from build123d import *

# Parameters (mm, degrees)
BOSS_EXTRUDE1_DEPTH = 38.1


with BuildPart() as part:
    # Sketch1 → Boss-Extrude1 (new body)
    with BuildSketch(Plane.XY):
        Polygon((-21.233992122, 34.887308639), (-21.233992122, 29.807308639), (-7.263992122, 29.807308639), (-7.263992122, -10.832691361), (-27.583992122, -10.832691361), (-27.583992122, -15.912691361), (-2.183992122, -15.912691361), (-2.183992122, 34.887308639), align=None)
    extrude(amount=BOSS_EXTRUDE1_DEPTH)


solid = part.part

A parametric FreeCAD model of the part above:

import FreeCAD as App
import Part
import Sketcher
from FreeCAD import Vector
Q = App.Units.Quantity


def add_polygon(sketch, points):
    """Adds a closed chain of lines whose ends are joined by coincident constraints."""
    first, n = sketch.GeometryCount, len(points)
    for a, b in zip(points, points[1:] + points[:1]):
        sketch.addGeometry(Part.LineSegment(App.Vector(*a, 0), App.Vector(*b, 0)), False)
    for i in range(n):
        sketch.addConstraint(Sketcher.Constraint("Coincident", first + i, 2, first + (i + 1) % n, 1))

doc = App.newDocument("Part")
body = doc.addObject("PartDesign::Body", "Body")

# Sketch on XY plane
sketch1 = doc.addObject("Sketcher::SketchObject", "Sketch")
body.addObject(sketch1)
sketch1.AttachmentSupport = (doc.XY_Plane, [""])
sketch1.MapMode = "FlatFace"
add_polygon(sketch1, [(-21.233992, 34.887309), (-21.233992, 29.807309), (-7.263992, 29.807309), (-7.263992, -10.832691), (-27.583992, -10.832691), (-27.583992, -15.912691), (-2.183992, -15.912691), (-2.183992, 34.887309)])  # lines 0-7
sketch1.addConstraint(Sketcher.Constraint("Vertical", 0))
sketch1.addConstraint(Sketcher.Constraint("Horizontal", 1))
sketch1.addConstraint(Sketcher.Constraint("Vertical", 2))
sketch1.addConstraint(Sketcher.Constraint("Horizontal", 3))
sketch1.addConstraint(Sketcher.Constraint("Vertical", 4))
sketch1.addConstraint(Sketcher.Constraint("Horizontal", 5))
sketch1.addConstraint(Sketcher.Constraint("Vertical", 6))
sketch1.addConstraint(Sketcher.Constraint("Horizontal", 7))
sketch1.addConstraint(Sketcher.Constraint("Equal", 0, 4))
sketch1.addConstraint(Sketcher.Constraint("DistanceX", 5, 1, 5, 2, Q("1 in")))
sketch1.addConstraint(Sketcher.Constraint("DistanceY", 6, 1, 6, 2, Q("2 in")))
sketch1.addConstraint(Sketcher.Constraint("DistanceX", 3, 2, 3, 1, Q("0.8 in")))
sketch1.addConstraint(Sketcher.Constraint("DistanceY", 0, 2, 0, 1, Q("0.2 in")))
sketch1.addConstraint(Sketcher.Constraint("DistanceX", 1, 1, 1, 2, Q("0.55 in")))
sketch1.addConstraint(Sketcher.Constraint("DistanceY", -1, 1, 0, 2, 29.807309))
sketch1.addConstraint(Sketcher.Constraint("DistanceX", 0, 2, -1, 1, 21.233992))
pad1 = doc.addObject("PartDesign::Pad", "Pad")
body.addObject(pad1)
pad1.Profile = sketch1
pad1.Length = Q("1.5 in")

doc.recompute()
